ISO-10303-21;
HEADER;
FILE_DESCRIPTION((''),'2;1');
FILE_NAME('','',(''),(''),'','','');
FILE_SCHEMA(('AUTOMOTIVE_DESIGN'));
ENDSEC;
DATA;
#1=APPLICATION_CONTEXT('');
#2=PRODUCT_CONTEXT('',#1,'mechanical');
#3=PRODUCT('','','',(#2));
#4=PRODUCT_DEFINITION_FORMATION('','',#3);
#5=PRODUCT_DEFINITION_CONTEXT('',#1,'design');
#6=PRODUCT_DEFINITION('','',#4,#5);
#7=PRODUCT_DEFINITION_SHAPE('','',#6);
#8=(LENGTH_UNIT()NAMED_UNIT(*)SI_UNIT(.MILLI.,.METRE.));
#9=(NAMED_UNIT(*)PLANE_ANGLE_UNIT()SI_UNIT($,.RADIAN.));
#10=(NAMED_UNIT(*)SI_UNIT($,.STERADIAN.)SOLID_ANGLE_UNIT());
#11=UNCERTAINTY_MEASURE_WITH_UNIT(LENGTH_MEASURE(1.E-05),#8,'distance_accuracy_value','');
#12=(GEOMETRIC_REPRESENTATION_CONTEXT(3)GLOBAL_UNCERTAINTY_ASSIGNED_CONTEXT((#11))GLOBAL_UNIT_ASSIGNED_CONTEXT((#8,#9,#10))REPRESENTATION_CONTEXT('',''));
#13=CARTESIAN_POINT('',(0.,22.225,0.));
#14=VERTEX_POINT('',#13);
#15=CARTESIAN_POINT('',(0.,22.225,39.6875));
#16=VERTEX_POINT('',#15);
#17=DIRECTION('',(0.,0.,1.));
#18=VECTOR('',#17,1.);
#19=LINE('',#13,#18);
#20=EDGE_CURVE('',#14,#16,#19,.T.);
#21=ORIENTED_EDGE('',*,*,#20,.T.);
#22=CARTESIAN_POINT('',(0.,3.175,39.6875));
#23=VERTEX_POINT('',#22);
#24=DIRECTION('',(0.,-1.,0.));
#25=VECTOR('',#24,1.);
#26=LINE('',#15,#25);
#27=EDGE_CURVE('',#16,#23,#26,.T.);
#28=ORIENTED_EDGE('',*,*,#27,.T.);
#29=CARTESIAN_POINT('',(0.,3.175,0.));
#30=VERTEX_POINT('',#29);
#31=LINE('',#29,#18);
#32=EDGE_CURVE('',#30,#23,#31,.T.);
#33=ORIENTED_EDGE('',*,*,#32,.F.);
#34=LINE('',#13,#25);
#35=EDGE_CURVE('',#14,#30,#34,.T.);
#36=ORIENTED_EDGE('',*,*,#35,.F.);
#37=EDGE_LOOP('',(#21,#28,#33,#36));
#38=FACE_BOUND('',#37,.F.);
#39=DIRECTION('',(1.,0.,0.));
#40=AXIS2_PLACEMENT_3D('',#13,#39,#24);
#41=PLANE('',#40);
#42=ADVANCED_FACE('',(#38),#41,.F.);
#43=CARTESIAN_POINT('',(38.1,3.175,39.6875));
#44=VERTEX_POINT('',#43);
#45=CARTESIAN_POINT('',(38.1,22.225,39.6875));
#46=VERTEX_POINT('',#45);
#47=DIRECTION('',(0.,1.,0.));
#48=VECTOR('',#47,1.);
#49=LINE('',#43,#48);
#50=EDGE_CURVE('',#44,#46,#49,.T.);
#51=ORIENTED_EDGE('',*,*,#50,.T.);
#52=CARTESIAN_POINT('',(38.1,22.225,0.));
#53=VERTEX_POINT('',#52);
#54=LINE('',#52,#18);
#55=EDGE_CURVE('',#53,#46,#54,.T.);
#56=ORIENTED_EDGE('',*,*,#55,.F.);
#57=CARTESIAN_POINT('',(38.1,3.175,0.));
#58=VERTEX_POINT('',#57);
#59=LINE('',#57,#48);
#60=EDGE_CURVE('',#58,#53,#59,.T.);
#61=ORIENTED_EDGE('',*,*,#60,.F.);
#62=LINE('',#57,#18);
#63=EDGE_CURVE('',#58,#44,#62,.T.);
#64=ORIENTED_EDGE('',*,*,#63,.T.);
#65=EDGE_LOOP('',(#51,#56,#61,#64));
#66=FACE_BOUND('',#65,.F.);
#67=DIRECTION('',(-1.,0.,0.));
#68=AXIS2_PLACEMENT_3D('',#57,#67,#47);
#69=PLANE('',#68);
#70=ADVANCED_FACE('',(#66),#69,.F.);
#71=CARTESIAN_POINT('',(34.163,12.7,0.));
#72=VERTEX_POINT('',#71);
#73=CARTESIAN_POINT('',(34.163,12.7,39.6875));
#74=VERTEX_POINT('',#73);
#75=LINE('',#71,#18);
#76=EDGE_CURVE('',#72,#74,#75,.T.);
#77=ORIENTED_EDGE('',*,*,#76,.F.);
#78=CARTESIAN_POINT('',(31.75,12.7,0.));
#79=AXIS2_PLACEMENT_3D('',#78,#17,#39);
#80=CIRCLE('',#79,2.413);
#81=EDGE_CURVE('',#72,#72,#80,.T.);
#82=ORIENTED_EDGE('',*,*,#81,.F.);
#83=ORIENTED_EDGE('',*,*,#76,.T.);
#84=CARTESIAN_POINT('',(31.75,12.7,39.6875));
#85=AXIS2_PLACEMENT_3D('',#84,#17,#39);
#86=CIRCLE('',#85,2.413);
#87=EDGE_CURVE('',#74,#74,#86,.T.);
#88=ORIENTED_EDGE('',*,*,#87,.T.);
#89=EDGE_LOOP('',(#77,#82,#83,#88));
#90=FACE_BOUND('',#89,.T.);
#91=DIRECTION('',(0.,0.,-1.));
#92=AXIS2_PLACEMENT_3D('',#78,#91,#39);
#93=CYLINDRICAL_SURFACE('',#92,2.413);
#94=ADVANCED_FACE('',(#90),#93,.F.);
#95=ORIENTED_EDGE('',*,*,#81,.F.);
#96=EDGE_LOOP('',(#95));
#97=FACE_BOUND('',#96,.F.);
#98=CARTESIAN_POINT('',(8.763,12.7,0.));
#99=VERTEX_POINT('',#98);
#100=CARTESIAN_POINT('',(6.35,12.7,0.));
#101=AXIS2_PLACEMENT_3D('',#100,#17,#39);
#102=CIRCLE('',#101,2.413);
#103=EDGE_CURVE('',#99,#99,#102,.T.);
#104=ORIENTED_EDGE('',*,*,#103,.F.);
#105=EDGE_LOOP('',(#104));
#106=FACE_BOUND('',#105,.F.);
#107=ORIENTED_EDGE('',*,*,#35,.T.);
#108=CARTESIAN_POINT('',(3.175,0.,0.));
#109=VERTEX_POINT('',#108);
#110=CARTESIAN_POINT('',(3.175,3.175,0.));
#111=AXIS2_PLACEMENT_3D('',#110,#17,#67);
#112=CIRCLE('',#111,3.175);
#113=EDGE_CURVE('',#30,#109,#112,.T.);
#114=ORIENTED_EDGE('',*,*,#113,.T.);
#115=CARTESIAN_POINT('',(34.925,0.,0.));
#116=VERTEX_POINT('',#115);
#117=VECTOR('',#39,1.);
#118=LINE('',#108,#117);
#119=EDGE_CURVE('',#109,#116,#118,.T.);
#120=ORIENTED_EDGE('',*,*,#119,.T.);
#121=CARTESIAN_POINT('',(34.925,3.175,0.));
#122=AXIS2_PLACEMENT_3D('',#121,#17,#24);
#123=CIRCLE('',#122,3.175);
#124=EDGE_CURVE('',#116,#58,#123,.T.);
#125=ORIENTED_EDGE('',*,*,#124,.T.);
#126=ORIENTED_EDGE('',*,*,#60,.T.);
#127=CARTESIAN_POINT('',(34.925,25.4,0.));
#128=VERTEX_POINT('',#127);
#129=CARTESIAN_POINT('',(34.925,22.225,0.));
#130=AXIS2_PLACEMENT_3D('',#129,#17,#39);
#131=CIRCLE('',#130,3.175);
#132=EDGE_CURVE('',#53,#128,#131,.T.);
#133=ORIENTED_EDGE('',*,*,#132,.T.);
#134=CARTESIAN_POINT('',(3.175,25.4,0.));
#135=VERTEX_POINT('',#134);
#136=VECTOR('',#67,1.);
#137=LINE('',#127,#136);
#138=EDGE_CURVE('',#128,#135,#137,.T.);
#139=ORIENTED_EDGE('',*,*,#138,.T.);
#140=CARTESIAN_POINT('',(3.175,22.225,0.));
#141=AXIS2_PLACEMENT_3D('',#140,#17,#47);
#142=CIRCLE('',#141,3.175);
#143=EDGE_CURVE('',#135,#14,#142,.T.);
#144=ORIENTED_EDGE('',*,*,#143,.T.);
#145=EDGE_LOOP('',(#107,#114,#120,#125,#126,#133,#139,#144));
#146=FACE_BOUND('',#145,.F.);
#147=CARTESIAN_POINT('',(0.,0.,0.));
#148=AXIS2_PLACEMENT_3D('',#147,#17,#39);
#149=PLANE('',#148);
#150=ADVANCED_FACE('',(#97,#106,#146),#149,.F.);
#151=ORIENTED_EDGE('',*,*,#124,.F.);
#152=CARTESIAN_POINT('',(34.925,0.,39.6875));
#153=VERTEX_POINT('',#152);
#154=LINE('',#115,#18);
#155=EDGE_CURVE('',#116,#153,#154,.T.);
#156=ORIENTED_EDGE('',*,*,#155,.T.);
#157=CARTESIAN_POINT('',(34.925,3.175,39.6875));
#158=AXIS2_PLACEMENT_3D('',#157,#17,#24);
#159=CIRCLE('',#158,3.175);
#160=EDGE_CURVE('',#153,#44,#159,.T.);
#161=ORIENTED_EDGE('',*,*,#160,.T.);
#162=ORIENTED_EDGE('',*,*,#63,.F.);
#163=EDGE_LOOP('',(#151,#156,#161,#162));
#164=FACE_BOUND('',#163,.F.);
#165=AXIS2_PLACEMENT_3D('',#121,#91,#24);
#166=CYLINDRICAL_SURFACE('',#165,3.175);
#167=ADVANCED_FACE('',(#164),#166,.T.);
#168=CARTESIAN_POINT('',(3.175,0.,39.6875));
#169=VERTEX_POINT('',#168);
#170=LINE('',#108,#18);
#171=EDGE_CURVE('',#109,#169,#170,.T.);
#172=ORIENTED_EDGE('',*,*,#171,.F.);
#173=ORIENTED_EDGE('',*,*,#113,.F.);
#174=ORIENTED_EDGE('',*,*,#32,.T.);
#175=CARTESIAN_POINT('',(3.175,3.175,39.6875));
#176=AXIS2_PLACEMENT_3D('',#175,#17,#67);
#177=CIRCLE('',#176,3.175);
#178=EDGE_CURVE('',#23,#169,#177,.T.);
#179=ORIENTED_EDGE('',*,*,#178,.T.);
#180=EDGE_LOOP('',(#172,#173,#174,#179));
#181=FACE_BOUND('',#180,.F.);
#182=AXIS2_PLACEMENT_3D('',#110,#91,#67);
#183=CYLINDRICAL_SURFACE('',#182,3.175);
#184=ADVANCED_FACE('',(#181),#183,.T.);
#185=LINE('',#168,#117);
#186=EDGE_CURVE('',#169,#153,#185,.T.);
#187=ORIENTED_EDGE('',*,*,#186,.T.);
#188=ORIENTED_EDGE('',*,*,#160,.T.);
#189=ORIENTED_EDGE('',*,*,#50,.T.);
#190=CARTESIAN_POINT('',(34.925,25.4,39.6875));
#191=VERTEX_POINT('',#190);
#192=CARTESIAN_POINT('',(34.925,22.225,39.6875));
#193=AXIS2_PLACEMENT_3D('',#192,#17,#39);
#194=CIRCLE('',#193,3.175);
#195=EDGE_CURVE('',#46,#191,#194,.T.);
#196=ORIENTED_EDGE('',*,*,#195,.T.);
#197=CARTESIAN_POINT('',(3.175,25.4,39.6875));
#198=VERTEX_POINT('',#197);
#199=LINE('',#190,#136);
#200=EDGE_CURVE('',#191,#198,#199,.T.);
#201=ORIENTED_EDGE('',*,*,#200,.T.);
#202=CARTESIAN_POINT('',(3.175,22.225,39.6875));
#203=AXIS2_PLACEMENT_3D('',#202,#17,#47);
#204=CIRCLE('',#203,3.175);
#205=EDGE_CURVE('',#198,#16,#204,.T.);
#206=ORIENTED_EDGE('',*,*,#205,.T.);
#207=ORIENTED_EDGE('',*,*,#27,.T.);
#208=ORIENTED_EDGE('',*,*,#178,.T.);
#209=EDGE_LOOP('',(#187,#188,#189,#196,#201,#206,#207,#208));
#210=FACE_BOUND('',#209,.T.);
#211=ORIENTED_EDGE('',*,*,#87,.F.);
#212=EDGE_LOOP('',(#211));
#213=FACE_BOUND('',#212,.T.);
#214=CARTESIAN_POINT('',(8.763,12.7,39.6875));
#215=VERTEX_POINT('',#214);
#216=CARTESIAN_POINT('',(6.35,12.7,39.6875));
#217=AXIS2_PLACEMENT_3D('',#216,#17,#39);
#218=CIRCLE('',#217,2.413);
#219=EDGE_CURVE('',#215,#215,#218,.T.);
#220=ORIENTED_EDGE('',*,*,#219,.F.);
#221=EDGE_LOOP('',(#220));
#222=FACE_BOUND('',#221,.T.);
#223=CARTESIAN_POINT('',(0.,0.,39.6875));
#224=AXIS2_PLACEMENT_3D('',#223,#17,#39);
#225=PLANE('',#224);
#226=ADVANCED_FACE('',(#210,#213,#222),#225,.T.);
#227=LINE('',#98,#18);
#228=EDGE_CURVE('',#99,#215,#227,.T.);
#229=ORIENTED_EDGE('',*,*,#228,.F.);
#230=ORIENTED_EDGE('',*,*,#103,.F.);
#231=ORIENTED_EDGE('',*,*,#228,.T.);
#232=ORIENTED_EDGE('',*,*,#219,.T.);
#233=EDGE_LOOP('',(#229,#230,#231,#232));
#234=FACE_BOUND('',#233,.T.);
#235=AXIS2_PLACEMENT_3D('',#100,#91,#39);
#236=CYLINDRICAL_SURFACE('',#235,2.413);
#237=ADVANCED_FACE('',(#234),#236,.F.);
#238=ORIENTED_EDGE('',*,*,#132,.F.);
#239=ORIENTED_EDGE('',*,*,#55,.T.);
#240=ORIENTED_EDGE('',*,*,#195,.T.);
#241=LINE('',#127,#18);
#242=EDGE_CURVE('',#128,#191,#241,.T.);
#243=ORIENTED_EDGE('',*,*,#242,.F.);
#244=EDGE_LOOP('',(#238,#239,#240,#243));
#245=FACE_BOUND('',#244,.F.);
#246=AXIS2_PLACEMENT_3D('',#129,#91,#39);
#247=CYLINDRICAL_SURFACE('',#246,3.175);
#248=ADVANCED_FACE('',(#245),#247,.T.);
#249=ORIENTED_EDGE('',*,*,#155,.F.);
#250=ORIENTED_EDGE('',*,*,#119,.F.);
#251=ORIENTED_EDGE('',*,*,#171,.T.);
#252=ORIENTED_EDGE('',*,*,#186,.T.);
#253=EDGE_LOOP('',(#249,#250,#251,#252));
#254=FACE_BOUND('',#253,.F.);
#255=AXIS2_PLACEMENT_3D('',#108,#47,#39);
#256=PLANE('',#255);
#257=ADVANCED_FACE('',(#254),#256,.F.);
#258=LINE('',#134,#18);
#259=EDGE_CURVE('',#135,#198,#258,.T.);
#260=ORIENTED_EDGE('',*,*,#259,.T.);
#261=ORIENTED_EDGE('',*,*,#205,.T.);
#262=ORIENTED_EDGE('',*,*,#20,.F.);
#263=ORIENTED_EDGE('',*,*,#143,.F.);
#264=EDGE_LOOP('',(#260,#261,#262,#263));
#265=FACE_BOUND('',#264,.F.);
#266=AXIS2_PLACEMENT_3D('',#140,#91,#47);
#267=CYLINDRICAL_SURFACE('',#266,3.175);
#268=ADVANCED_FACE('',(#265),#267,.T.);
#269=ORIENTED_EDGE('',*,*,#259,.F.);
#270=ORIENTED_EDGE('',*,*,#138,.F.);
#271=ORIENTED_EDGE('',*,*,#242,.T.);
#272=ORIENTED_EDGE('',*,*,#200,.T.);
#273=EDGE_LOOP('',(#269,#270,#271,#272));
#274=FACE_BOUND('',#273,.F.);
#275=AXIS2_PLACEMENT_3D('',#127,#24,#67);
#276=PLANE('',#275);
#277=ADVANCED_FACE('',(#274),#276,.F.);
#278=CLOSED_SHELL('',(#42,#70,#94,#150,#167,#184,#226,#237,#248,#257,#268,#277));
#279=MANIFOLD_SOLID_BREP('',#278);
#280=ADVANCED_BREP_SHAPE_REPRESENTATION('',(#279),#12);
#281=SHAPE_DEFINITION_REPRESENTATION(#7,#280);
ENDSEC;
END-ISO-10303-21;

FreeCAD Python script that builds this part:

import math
import FreeCAD as App
import Part
import Sketcher
Q = App.Units.Quantity

doc = App.newDocument("Part")
body = doc.addObject("PartDesign::Body", "Body")

sketch1 = doc.addObject("Sketcher::SketchObject", "Sketch")
body.addObject(sketch1)
sketch1.AttachmentSupport = (doc.XY_Plane, [""])
sketch1.MapMode = "FlatFace"
sketch1.addGeometry([
    Part.ArcOfCircle(Part.Circle(App.Vector(3.2, 3.2, 0), App.Vector(0, 0, 1), 3.2), math.radians(180), math.radians(270)),
    Part.LineSegment(App.Vector(3.2, 0, 0), App.Vector(34.9, 0, 0)),
    Part.ArcOfCircle(Part.Circle(App.Vector(34.9, 3.2, 0), App.Vector(0, 0, 1), 3.2), math.radians(-90), math.radians(0)),
    Part.LineSegment(App.Vector(38.1, 3.2, 0), App.Vector(38.1, 22.2, 0)),
    Part.ArcOfCircle(Part.Circle(App.Vector(34.9, 22.2, 0), App.Vector(0, 0, 1), 3.2), math.radians(0), math.radians(90)),
    Part.LineSegment(App.Vector(34.9, 25.4, 0), App.Vector(3.2, 25.4, 0)),
    Part.ArcOfCircle(Part.Circle(App.Vector(3.2, 22.2, 0), App.Vector(0, 0, 1), 3.2), math.radians(90), math.radians(180)),
    Part.LineSegment(App.Vector(0, 22.2, 0), App.Vector(0, 3.2, 0)),
    Part.Circle(App.Vector(6.3, 12.7, 0), App.Vector(0, 0, 1), 2.4),
    Part.Circle(App.Vector(31.8, 12.7, 0), App.Vector(0, 0, 1), 2.4),
], False)
sketch1.addConstraint([
    Sketcher.Constraint("Tangent", 0, 2, 1, 1),
    Sketcher.Constraint("Tangent", 1, 2, 2, 1),
    Sketcher.Constraint("Tangent", 2, 2, 3, 1),
    Sketcher.Constraint("Tangent", 3, 2, 4, 1),
    Sketcher.Constraint("Tangent", 4, 2, 5, 1),
    Sketcher.Constraint("Tangent", 5, 2, 6, 1),
    Sketcher.Constraint("Tangent", 6, 2, 7, 1),
    Sketcher.Constraint("Tangent", 7, 2, 0, 1),
    Sketcher.Constraint("Horizontal", 1),
    Sketcher.Constraint("Vertical", 3),
    Sketcher.Constraint("Horizontal", 5),
    Sketcher.Constraint("Vertical", 7),
    Sketcher.Constraint("Equal", 0, 2),
    Sketcher.Constraint("Equal", 2, 4),
    Sketcher.Constraint("Equal", 4, 6),
    Sketcher.Constraint("Equal", 8, 9),
    Sketcher.Constraint("PointOnObject", 0, 2, -1),
    Sketcher.Constraint("PointOnObject", 6, 2, -2),
    Sketcher.Constraint("Horizontal", 8, 3, 9, 3),
    Sketcher.Constraint("Diameter", 8, Q("0.19 in")),
    Sketcher.Constraint("DistanceY", -1, 1, 4, 2, Q("1 in")),
    Sketcher.Constraint("Radius", 0, Q("0.125 in")),
    Sketcher.Constraint("DistanceX", 8, 3, 9, 3, Q("1 in")),
    Sketcher.Constraint("DistanceX", -1, 1, 2, 2, Q("1.5 in")),
    Sketcher.Constraint("DistanceX", -1, 1, 8, 3, Q("0.25 in")),
    Sketcher.Constraint("DistanceY", -1, 1, 8, 3, Q("0.5 in")),
])
pad1 = doc.addObject("PartDesign::Pad", "Pad")
body.addObject(pad1)
pad1.Profile = sketch1
pad1.Length = Q("1.5625 in")

doc.recompute()
